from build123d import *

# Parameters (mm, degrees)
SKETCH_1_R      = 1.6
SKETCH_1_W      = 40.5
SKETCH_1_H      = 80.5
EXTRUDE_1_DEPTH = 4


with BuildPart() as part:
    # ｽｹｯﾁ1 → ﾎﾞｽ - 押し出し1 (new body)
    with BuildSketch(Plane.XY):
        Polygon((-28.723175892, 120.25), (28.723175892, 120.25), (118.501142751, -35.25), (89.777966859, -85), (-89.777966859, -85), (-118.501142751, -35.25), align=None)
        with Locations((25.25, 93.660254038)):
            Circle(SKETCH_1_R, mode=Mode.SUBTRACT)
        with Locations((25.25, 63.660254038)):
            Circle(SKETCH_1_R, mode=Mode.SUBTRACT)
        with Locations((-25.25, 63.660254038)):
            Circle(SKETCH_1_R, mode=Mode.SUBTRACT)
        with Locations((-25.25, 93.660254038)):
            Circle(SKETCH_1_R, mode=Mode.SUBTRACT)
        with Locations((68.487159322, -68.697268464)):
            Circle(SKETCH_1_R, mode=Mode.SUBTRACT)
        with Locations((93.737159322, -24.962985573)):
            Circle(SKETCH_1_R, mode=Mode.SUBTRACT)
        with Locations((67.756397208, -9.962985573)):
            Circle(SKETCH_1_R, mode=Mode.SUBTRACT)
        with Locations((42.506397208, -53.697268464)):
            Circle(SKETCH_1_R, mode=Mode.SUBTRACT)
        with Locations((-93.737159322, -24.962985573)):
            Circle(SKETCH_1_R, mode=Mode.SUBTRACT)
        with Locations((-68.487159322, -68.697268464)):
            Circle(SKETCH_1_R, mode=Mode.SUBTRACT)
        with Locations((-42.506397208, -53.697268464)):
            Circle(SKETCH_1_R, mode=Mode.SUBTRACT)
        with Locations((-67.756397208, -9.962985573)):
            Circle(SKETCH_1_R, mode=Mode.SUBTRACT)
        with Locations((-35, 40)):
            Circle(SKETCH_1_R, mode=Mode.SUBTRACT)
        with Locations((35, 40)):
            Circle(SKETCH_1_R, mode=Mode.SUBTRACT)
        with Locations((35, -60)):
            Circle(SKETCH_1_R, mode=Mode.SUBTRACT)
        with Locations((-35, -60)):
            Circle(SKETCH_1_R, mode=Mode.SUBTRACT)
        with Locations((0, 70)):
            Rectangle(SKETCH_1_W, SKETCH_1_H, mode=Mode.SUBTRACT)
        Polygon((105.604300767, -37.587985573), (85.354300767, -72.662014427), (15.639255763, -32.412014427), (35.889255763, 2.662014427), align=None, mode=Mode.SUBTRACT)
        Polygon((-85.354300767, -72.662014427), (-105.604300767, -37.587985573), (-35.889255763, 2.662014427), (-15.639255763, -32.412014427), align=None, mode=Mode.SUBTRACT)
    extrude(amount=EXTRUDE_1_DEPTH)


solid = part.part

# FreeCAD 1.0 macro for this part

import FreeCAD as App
import Part
import Sketcher

V = App.Vector
Q = App.Units.Quantity


def add_polygon(sketch, points):
    """Adds a closed chain of lines whose ends are joined by coincident constraints."""
    first, n = sketch.GeometryCount, len(points)
    for a, b in zip(points, points[1:] + points[:1]):
        sketch.addGeometry(Part.LineSegment(App.Vector(*a, 0), App.Vector(*b, 0)), False)
    for i in range(n):
        sketch.addConstraint(Sketcher.Constraint("Coincident", first + i, 2, first + (i + 1) % n, 1))

doc = App.newDocument("Part")
body = doc.addObject("PartDesign::Body", "Body")

sketch1 = body.newObject("Sketcher::SketchObject", "Sketch")
sketch1.AttachmentSupport = (doc.getObject("XY_Plane"), [""])
sketch1.MapMode = "FlatFace"
add_polygon(sketch1, [(28.7, 120.2), (-28.7, 120.2), (-118.5, -35.2), (-89.8, -85), (89.8, -85), (118.5, -35.2)])
sketch1.addGeometry(Part.Circle(V(68.5, -68.7, 0), V(0, 0, 1), 1.6), False)
add_polygon(sketch1, [(105.6, -37.6), (85.4, -72.7), (15.6, -32.4), (35.9, 2.7)])
sketch1.addGeometry(Part.Circle(V(42.5, -53.7, 0), V(0, 0, 1), 1.6), False)
sketch1.addGeometry(Part.Circle(V(35, -60, 0), V(0, 0, 1), 1.6), False)
sketch1.addGeometry(Part.Circle(V(93.7, -25, 0), V(0, 0, 1), 1.6), False)
sketch1.addGeometry(Part.Circle(V(67.8, -10, 0), V(0, 0, 1), 1.6), False)
sketch1.addGeometry(Part.Circle(V(-35, -60, 0), V(0, 0, 1), 1.6), False)
sketch1.addGeometry(Part.Circle(V(-42.5, -53.7, 0), V(0, 0, 1), 1.6), False)
sketch1.addGeometry(Part.Circle(V(-68.5, -68.7, 0), V(0, 0, 1), 1.6), False)
add_polygon(sketch1, [(-85.4, -72.7), (-105.6, -37.6), (-35.9, 2.7), (-15.6, -32.4)])
sketch1.addGeometry(Part.Circle(V(-67.8, -10, 0), V(0, 0, 1), 1.6), False)
sketch1.addGeometry(Part.Circle(V(-93.7, -25, 0), V(0, 0, 1), 1.6), False)
sketch1.addGeometry(Part.Circle(V(35, 40, 0), V(0, 0, 1), 1.6), False)
sketch1.addGeometry(Part.Circle(V(25.2, 63.7, 0), V(0, 0, 1), 1.6), False)
sketch1.addGeometry(Part.Circle(V(25.2, 93.7, 0), V(0, 0, 1), 1.6), False)
sketch1.addGeometry(Part.Circle(V(-35, 40, 0), V(0, 0, 1), 1.6), False)
sketch1.addGeometry(Part.Circle(V(-25.2, 63.7, 0), V(0, 0, 1), 1.6), False)
add_polygon(sketch1, [(-20.2, 29.8), (-20.2, 110.2), (20.2, 110.2), (20.2, 29.8)])
sketch1.addGeometry(Part.Circle(V(-25.2, 93.7, 0), V(0, 0, 1), 1.6), False)
sketch1.addConstraint([
    Sketcher.Constraint("Horizontal", 0),
    Sketcher.Constraint("Horizontal", 3),
    Sketcher.Constraint("Vertical", 29),
    Sketcher.Constraint("Horizontal", 30),
    Sketcher.Constraint("Vertical", 31),
    Sketcher.Constraint("Horizontal", 32),
    Sketcher.Constraint("Equal", 6, 11),
    Sketcher.Constraint("Equal", 11, 12),
    Sketcher.Constraint("Equal", 12, 13),
    Sketcher.Constraint("Equal", 13, 14),
    Sketcher.Constraint("Equal", 14, 15),
    Sketcher.Constraint("Equal", 15, 16),
    Sketcher.Constraint("Equal", 16, 17),
    Sketcher.Constraint("Equal", 17, 22),
    Sketcher.Constraint("Equal", 22, 23),
    Sketcher.Constraint("Equal", 23, 24),
    Sketcher.Constraint("Equal", 24, 25),
    Sketcher.Constraint("Equal", 25, 26),
    Sketcher.Constraint("Equal", 26, 27),
    Sketcher.Constraint("Equal", 27, 28),
    Sketcher.Constraint("Equal", 28, 33),
    Sketcher.Constraint("Symmetric", 12, 3, 15, 3, -2),
    Sketcher.Constraint("Symmetric", 11, 3, 16, 3, -2),
    Sketcher.Constraint("Symmetric", 6, 3, 17, 3, -2),
    Sketcher.Constraint("Symmetric", 14, 3, 22, 3, -2),
    Sketcher.Constraint("Symmetric", 13, 3, 23, 3, -2),
    Sketcher.Constraint("Symmetric", 24, 3, 27, 3, -2),
    Sketcher.Constraint("Symmetric", 25, 3, 28, 3, -2),
    Sketcher.Constraint("Symmetric", 26, 3, 33, 3, -2),
    Sketcher.Constraint("Symmetric", 1, 2, 4, 2, -2),
    Sketcher.Constraint("Symmetric", 10, 2, 18, 2, -2),
    Sketcher.Constraint("Symmetric", 9, 2, 19, 2, -2),
    Sketcher.Constraint("Symmetric", 8, 2, 20, 2, -2),
    Sketcher.Constraint("Symmetric", 7, 2, 21, 2, -2),
    Sketcher.Constraint("Parallel", 1, 4),
    Sketcher.Constraint("Parallel", 2, 5),
    Sketcher.Constraint("Parallel", 4, 7),
    Sketcher.Constraint("Perpendicular", 7, 8),
    Sketcher.Constraint("Perpendicular", 8, 9),
    Sketcher.Constraint("Perpendicular", 9, 10),
    Sketcher.Constraint("Parallel", 5, 18),
    Sketcher.Constraint("Vertical", 12, 3, 24, 3),
    Sketcher.Constraint("Vertical", 25, 3, 26, 3),
    Sketcher.Constraint("Diameter", 6, 3.2),
    Sketcher.Constraint("Angle", 1, Q("-120 deg")),
    Sketcher.Constraint("DistanceX", 30, 1, 30, 2, 40.5),
    Sketcher.Constraint("DistanceY", 29, 1, 29, 2, 80.5),
    Sketcher.Constraint("DistanceX", -1, 1, 12, 3, 35.0),
    Sketcher.Constraint("DistanceY", 12, 3, -1, 1, 60.0),
    Sketcher.Constraint("DistanceY", -1, 1, 24, 3, 40.0),
    Sketcher.Constraint("DistanceY", 2, 2, -1, 1, 85.0),
    Sketcher.Constraint("DistanceY", 6, 3, 11, 3, 15.0),
    Sketcher.Constraint("DistanceY", 13, 3, 14, 3, 15.0),
    Sketcher.Constraint("DistanceY", 25, 3, 26, 3, 30.0),
    Sketcher.Constraint("DistanceY", 29, 2, 0, 2, 10.0),
    Sketcher.Constraint("DistanceX", 33, 3, 29, 2, 5.0),
    Sketcher.Constraint("DistanceX", 30, 2, 26, 3, 5.0),
    Sketcher.Constraint("Distance", 7, 40.5),
    Sketcher.Constraint("Distance", 8, 80.5),
    Sketcher.Constraint("DistanceY", -1, 1, 0, 2, 120.25),
    Sketcher.Constraint("DistanceY", 1, 2, -1, 1, 35.25),
    Sketcher.Constraint("DistanceX", 6, 3, 13, 3, 25.25),
    Sketcher.Constraint("DistanceX", 11, 3, 14, 3, 25.25),
    Sketcher.Constraint("DistanceY", 14, 3, 9, 2, 12.625),
    Sketcher.Constraint("DistanceX", 0, 2, 0, 1, 57.446352),
    Sketcher.Constraint("DistanceX", -1, 1, 7, 2, 85.354301),
    Sketcher.Constraint("DistanceX", -1, 1, 6, 3, 68.487159),
    Sketcher.Constraint("DistanceY", 6, 3, -1, 1, 68.697268),
    Sketcher.Constraint("DistanceY", 14, 3, 25, 3, 73.62324),
    Sketcher.Constraint("DistanceX", 2, 2, 16, 3, 47.27157),
    Sketcher.Constraint("DistanceY", 13, 3, -1, 1, 24.962986),
])
pad1 = body.newObject("PartDesign::Pad", "Pad")
pad1.Profile = sketch1
pad1.Length = 4

doc.recompute()
